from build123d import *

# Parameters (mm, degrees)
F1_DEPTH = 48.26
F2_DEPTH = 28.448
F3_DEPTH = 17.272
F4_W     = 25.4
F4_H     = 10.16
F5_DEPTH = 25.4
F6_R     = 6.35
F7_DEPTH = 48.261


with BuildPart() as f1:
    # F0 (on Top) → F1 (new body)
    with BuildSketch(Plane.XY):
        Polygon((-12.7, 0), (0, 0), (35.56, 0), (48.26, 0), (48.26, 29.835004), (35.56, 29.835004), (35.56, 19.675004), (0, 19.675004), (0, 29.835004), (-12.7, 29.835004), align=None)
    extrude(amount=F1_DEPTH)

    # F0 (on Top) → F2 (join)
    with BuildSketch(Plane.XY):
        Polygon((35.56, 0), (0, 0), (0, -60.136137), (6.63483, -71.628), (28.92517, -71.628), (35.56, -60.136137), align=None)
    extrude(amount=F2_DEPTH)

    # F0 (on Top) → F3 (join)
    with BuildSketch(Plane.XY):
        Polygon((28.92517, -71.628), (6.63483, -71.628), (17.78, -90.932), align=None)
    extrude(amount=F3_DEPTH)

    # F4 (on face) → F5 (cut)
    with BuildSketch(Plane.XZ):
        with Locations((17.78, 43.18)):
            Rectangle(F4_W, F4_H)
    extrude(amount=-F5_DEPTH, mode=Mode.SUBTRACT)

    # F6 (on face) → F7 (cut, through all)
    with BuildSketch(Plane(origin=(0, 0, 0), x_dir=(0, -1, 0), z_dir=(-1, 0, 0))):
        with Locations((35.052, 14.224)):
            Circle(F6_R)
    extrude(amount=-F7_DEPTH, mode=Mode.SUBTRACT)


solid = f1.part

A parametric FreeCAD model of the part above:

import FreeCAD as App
import Part
import Sketcher

V = App.Vector
Q = App.Units.Quantity


def add_polygon(sketch, points):
    """Adds a closed chain of lines whose ends are joined by coincident constraints."""
    first, n = sketch.GeometryCount, len(points)
    for a, b in zip(points, points[1:] + points[:1]):
        sketch.addGeometry(Part.LineSegment(App.Vector(*a, 0), App.Vector(*b, 0)), False)
    for i in range(n):
        sketch.addConstraint(Sketcher.Constraint("Coincident", first + i, 2, first + (i + 1) % n, 1))

doc = App.newDocument("Part")
body = doc.addObject("PartDesign::Body", "Body")

sketch1 = doc.addObject("Sketcher::SketchObject", "Sketch")
body.addObject(sketch1)
sketch1.AttachmentSupport = (doc.XY_Plane, [""])
sketch1.MapMode = "FlatFace"
add_polygon(sketch1, [(-12.7, 0), (48.26, 0), (48.26, 29.835004), (35.56, 29.835004), (35.56, 19.675004), (0, 19.675004), (0, 29.835004), (-12.7, 29.835004)])
sketch1.addConstraint(Sketcher.Constraint("Horizontal", 0))
sketch1.addConstraint(Sketcher.Constraint("Vertical", 1))
sketch1.addConstraint(Sketcher.Constraint("Horizontal", 2))
sketch1.addConstraint(Sketcher.Constraint("Vertical", 3))
sketch1.addConstraint(Sketcher.Constraint("Horizontal", 4))
sketch1.addConstraint(Sketcher.Constraint("Vertical", 5))
sketch1.addConstraint(Sketcher.Constraint("Horizontal", 6))
sketch1.addConstraint(Sketcher.Constraint("Vertical", 7))
sketch1.addConstraint(Sketcher.Constraint("PointOnObject", 0, 2, -1))
sketch1.addConstraint(Sketcher.Constraint("PointOnObject", 4, 2, -2))
sketch1.addConstraint(Sketcher.Constraint("Horizontal", 2, 2, 5, 2))
sketch1.addConstraint(Sketcher.Constraint("Equal", 2, 6))
sketch1.addConstraint(Sketcher.Constraint("DistanceX", 0, 1, 0, 2, Q("2.4 in")))
sketch1.addConstraint(Sketcher.Constraint("DistanceX", 2, 2, 2, 1, Q("0.5 in")))
sketch1.addConstraint(Sketcher.Constraint("DistanceY", 3, 2, 3, 1, Q("0.4 in")))
sketch1.addConstraint(Sketcher.Constraint("DistanceY", 1, 1, 1, 2, 29.835004))
pad1 = doc.addObject("PartDesign::Pad", "Pad")
body.addObject(pad1)
pad1.Profile = sketch1
pad1.Length = Q("1.9 in")

sketch2 = doc.addObject("Sketcher::SketchObject", "Sketch001")
body.addObject(sketch2)
sketch2.AttachmentSupport = (doc.XY_Plane, [""])
sketch2.MapMode = "FlatFace"
add_polygon(sketch2, [(35.56, 0), (0, 0), (0, -60.136137), (6.63483, -71.628), (28.92517, -71.628), (35.56, -60.136137)])
sketch2.addConstraint(Sketcher.Constraint("Horizontal", 0))
sketch2.addConstraint(Sketcher.Constraint("Vertical", 1))
sketch2.addConstraint(Sketcher.Constraint("Horizontal", 3))
sketch2.addConstraint(Sketcher.Constraint("Vertical", 5))
sketch2.addConstraint(Sketcher.Constraint("Coincident", 0, 2, -1, 1))
sketch2.addConstraint(Sketcher.Constraint("Horizontal", 1, 2, 4, 2))
sketch2.addConstraint(Sketcher.Constraint("Equal", 2, 4))
sketch2.addConstraint(Sketcher.Constraint("DistanceX", 0, 2, 0, 1, Q("1.4 in")))
sketch2.addConstraint(Sketcher.Constraint("Angle", 2, Q("-60.000001 deg")))
sketch2.addConstraint(Sketcher.Constraint("DistanceY", 2, 2, -1, 1, Q("2.82 in")))
sketch2.addConstraint(Sketcher.Constraint("DistanceX", 3, 1, 3, 2, 22.29034))
pad2 = doc.addObject("PartDesign::Pad", "Pad001")
body.addObject(pad2)
pad2.Profile = sketch2
pad2.Length = Q("1.12 in")

sketch3 = doc.addObject("Sketcher::SketchObject", "Sketch002")
body.addObject(sketch3)
sketch3.AttachmentSupport = (doc.XY_Plane, [""])
sketch3.MapMode = "FlatFace"
add_polygon(sketch3, [(28.92517, -71.628), (6.63483, -71.628), (17.78, -90.932)])
sketch3.addConstraint(Sketcher.Constraint("Horizontal", 0))
sketch3.addConstraint(Sketcher.Constraint("Equal", 1, 2))
sketch3.addConstraint(Sketcher.Constraint("Angle", 1, Q("-59.999999 deg")))
sketch3.addConstraint(Sketcher.Constraint("DistanceX", -1, 1, 1, 2, Q("0.7 in")))
sketch3.addConstraint(Sketcher.Constraint("DistanceY", 0, 2, -1, 1, Q("2.82 in")))
sketch3.addConstraint(Sketcher.Constraint("DistanceY", 1, 2, -1, 1, Q("3.58 in")))
pad3 = doc.addObject("PartDesign::Pad", "Pad002")
body.addObject(pad3)
pad3.Profile = sketch3
pad3.Length = Q("0.68 in")

sketch4 = doc.addObject("Sketcher::SketchObject", "Sketch003")
body.addObject(sketch4)
sketch4.AttachmentSupport = (doc.XZ_Plane, [""])
sketch4.MapMode = "FlatFace"
add_polygon(sketch4, [(5.08, 48.26), (5.08, 38.1), (30.48, 38.1), (30.48, 48.26)])
sketch4.addConstraint(Sketcher.Constraint("Vertical", 0))
sketch4.addConstraint(Sketcher.Constraint("Horizontal", 1))
sketch4.addConstraint(Sketcher.Constraint("Vertical", 2))
sketch4.addConstraint(Sketcher.Constraint("Horizontal", 3))
sketch4.addConstraint(Sketcher.Constraint("DistanceX", 1, 1, 1, 2, Q("1 in")))
sketch4.addConstraint(Sketcher.Constraint("DistanceY", 0, 2, 0, 1, Q("0.4 in")))
sketch4.addConstraint(Sketcher.Constraint("DistanceX", -1, 1, 0, 2, Q("0.2 in")))
sketch4.addConstraint(Sketcher.Constraint("DistanceY", -1, 1, 0, 2, Q("1.5 in")))
pocket1 = doc.addObject("PartDesign::Pocket", "Pocket")
body.addObject(pocket1)
pocket1.Profile = sketch4
pocket1.Length = Q("1 in")

sketch5 = doc.addObject("Sketcher::SketchObject", "Sketch004")
body.addObject(sketch5)
sketch5.AttachmentSupport = (doc.YZ_Plane, [""])
sketch5.MapMode = "FlatFace"
sketch5.addGeometry(Part.Circle(V(-35.052, 14.224, 0), V(0, 0, 1), 6.35), False)
sketch5.addConstraint(Sketcher.Constraint("Diameter", 0, Q("0.5 in")))
sketch5.addConstraint(Sketcher.Constraint("DistanceX", 0, 3, -1, 1, Q("1.38 in")))
sketch5.addConstraint(Sketcher.Constraint("DistanceY", -1, 1, 0, 3, Q("0.56 in")))
pocket2 = doc.addObject("PartDesign::Pocket", "Pocket001")
body.addObject(pocket2)
pocket2.Profile = sketch5
pocket2.Type = "ThroughAll"
pocket2.Reversed = True

doc.recompute()
